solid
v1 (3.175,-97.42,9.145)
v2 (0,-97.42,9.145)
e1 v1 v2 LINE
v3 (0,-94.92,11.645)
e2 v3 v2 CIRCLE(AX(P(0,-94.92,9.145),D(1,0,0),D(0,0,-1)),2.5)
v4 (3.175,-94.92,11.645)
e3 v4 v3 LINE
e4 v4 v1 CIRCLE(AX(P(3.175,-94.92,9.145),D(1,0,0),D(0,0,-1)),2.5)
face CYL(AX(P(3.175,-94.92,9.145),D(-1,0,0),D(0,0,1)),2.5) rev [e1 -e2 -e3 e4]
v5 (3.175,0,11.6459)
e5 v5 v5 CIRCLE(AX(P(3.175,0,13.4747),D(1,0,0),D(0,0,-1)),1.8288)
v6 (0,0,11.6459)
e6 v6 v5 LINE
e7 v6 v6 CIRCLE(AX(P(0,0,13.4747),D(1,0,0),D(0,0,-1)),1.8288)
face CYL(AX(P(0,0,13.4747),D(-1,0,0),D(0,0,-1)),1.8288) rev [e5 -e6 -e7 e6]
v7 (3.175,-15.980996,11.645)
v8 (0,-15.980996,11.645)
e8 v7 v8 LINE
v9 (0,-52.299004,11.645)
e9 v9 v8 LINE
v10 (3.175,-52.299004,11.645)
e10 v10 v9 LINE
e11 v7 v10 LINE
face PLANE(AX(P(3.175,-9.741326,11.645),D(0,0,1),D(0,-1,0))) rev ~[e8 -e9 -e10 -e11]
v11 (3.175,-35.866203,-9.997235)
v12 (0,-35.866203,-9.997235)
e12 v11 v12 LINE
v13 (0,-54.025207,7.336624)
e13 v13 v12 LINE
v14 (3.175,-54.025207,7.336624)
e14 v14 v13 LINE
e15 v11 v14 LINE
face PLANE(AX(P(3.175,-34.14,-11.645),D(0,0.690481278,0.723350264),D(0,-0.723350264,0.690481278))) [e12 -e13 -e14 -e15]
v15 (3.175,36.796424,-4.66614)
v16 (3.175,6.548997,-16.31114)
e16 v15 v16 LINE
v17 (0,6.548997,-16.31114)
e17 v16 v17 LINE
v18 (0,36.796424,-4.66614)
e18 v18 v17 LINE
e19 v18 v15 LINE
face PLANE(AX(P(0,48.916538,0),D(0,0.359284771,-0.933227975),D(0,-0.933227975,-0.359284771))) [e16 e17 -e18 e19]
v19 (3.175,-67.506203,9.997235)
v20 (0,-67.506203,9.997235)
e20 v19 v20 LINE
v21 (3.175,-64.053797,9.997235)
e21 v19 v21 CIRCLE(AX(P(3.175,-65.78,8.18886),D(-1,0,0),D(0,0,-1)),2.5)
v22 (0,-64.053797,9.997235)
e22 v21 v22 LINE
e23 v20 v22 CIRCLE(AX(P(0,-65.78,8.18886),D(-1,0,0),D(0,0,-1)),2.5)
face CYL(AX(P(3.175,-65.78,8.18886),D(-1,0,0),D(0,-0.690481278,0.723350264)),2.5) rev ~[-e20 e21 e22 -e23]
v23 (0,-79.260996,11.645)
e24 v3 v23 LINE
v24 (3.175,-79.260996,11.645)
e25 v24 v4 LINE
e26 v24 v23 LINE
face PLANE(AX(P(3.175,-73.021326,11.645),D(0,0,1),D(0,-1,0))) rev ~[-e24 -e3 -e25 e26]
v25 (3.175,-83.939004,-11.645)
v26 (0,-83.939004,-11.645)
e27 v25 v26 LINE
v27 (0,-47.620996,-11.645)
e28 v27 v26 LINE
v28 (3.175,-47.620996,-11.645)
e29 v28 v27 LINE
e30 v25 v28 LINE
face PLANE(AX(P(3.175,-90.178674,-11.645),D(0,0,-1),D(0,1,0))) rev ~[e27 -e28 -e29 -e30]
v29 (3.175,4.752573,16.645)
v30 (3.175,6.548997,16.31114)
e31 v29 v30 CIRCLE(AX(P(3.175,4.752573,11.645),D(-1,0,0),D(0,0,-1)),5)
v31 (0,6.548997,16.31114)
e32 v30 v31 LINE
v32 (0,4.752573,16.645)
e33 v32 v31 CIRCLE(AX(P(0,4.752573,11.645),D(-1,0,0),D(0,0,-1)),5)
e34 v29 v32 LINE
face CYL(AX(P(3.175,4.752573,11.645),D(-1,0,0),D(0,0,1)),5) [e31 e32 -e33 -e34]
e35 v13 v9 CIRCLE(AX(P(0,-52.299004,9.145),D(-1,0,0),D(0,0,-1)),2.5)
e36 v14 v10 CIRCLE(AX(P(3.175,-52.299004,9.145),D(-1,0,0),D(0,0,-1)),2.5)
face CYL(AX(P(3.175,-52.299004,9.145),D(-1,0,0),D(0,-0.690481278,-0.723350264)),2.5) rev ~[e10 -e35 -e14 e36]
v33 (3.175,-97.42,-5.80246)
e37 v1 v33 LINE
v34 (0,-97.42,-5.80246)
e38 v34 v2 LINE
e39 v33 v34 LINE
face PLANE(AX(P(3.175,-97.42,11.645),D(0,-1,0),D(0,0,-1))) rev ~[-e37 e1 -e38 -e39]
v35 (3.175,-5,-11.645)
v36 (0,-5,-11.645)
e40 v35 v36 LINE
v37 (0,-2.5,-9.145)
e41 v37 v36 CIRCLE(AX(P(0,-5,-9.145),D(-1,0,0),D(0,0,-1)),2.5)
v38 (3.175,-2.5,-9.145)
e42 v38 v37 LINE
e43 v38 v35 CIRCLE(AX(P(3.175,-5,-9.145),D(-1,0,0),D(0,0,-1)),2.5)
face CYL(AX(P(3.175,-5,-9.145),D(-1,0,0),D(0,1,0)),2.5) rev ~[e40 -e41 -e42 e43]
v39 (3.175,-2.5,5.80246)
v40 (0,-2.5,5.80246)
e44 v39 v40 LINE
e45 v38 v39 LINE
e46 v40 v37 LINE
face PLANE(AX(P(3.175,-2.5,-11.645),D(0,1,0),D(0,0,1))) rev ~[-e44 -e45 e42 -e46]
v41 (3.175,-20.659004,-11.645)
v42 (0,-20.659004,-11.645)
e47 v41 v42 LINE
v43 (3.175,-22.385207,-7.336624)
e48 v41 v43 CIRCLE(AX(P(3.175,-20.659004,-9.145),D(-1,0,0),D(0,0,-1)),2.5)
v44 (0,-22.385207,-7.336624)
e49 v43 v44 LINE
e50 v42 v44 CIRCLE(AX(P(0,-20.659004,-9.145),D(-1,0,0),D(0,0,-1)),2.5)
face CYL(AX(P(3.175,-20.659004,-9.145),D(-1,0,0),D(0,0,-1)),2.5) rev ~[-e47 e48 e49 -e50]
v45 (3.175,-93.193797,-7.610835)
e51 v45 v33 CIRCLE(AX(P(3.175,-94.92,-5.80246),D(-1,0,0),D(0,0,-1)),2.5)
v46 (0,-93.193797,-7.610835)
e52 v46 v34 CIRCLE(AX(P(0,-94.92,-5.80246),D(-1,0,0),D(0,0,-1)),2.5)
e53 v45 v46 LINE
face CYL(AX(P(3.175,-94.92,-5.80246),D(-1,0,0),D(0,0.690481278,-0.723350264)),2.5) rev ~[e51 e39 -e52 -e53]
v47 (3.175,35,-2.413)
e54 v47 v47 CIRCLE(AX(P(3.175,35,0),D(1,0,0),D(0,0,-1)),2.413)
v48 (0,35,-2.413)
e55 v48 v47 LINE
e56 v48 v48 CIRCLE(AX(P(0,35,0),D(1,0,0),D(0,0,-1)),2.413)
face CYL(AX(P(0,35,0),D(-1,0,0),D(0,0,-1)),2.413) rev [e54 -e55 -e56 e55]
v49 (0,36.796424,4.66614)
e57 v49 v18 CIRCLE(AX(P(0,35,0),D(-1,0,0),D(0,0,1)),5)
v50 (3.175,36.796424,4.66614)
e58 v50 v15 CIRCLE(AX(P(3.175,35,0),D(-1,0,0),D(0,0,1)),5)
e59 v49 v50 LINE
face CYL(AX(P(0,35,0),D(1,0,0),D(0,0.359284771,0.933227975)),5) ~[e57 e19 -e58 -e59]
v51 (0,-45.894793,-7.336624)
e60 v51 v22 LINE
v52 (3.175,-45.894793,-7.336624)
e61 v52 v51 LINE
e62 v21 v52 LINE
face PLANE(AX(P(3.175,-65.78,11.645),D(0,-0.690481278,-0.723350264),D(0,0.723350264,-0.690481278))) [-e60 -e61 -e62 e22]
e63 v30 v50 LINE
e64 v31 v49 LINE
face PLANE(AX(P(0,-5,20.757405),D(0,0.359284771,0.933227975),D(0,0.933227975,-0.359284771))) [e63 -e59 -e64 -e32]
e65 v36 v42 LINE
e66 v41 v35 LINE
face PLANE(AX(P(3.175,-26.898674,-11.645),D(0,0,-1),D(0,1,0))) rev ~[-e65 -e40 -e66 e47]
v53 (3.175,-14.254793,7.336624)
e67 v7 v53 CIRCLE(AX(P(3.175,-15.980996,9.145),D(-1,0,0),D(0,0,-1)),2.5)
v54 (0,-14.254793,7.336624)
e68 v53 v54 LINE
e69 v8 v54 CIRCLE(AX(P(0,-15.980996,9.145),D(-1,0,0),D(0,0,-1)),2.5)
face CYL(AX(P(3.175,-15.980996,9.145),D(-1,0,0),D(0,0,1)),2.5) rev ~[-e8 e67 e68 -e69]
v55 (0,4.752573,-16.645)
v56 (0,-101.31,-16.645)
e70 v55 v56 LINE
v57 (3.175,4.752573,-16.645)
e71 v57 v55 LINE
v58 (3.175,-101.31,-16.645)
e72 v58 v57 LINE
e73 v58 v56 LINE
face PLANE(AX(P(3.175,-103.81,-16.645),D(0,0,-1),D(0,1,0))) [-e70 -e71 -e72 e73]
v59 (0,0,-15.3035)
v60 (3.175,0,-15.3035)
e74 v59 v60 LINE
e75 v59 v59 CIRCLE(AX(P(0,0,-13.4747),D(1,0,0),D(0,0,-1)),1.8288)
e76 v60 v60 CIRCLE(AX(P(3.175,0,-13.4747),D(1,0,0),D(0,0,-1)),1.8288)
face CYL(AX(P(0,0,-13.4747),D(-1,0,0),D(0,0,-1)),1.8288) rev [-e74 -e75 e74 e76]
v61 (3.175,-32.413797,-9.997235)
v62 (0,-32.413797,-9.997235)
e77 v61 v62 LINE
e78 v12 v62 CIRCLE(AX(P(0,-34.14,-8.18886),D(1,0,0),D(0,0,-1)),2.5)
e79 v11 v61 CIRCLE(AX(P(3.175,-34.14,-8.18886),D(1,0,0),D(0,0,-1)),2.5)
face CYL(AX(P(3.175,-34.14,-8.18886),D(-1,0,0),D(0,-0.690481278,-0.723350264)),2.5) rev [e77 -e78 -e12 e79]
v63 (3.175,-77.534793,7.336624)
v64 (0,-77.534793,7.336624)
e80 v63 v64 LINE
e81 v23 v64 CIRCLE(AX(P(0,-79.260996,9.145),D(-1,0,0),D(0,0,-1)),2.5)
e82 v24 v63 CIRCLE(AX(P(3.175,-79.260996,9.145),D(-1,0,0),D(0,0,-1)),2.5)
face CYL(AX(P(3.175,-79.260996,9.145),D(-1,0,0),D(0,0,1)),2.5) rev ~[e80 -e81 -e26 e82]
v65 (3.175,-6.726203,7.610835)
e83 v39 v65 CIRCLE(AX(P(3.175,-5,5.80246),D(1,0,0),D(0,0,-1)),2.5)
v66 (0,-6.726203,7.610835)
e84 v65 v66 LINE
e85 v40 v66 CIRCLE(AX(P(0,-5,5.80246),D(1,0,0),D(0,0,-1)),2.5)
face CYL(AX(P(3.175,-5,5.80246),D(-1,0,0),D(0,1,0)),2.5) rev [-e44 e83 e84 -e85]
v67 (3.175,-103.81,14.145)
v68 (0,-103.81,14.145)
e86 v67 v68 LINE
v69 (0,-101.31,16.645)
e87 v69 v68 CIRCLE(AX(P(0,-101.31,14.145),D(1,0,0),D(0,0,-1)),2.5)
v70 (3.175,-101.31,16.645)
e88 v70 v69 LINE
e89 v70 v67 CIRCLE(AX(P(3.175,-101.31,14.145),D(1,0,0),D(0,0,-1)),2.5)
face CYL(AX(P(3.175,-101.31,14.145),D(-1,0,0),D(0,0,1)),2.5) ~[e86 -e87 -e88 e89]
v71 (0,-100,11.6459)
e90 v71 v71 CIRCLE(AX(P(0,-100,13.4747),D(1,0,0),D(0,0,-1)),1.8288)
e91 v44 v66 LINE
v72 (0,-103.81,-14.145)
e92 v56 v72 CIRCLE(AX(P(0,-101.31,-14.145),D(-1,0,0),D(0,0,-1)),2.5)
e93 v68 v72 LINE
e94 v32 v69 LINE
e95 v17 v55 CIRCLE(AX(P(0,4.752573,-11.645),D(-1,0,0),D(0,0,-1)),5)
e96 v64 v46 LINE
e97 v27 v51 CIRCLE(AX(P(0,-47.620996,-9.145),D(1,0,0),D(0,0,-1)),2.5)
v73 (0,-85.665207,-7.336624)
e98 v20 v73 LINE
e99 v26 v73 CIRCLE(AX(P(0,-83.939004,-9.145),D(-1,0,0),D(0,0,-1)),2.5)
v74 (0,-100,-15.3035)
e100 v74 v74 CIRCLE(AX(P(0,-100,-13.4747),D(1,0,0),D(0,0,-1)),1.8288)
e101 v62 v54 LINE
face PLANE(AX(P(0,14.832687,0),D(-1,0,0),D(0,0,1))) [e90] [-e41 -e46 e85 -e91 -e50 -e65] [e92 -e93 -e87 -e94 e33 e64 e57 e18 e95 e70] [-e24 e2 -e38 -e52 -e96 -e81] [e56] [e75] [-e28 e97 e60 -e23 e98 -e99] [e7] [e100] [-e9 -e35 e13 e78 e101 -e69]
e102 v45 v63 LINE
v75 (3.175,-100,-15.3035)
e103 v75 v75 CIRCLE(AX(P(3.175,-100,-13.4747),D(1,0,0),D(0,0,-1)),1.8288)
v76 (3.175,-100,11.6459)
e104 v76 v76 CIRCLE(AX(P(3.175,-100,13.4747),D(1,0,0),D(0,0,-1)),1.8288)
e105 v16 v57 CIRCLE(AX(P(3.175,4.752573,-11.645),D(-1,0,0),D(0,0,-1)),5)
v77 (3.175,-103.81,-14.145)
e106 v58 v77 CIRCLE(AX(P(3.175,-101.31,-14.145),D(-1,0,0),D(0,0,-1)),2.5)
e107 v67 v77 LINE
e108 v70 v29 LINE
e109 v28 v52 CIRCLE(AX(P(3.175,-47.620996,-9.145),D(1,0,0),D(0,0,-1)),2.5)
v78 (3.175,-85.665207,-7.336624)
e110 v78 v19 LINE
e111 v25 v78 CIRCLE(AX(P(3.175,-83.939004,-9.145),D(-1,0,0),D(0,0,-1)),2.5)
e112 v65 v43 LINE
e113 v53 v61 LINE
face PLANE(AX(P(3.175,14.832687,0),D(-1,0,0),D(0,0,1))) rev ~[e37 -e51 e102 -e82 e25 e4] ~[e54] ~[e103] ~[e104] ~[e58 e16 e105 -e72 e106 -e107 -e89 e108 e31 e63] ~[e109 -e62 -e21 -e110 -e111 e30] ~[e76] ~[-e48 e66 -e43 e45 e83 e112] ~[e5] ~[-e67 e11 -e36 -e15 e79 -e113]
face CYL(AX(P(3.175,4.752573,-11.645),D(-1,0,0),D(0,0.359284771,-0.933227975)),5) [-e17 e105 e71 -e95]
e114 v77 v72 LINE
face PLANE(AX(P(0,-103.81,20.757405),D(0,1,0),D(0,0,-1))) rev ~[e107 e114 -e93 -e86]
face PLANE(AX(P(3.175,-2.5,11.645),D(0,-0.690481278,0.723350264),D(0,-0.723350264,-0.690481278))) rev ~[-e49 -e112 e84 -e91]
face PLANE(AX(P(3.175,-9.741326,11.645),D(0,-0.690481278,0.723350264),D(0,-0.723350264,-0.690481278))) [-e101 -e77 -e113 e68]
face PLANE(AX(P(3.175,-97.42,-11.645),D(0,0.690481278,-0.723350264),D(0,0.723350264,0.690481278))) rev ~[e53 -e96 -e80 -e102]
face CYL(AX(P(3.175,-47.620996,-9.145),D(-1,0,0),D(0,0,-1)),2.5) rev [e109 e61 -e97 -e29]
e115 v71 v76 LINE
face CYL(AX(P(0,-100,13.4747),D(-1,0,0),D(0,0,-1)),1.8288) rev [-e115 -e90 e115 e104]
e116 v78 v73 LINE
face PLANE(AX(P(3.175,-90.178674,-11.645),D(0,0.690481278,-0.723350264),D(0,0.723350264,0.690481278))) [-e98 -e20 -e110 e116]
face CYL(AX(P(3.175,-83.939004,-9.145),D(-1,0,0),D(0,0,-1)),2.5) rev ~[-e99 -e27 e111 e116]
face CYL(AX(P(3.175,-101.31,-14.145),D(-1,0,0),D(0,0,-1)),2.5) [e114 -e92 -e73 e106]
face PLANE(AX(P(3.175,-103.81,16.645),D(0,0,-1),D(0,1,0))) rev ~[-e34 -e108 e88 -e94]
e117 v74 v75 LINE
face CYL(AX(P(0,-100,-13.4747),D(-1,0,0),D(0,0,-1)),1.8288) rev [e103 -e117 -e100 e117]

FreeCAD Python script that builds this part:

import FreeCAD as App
import Part
import Sketcher

V = App.Vector
Q = App.Units.Quantity


def edges_at(feature, points):
    """Names of the edges that pass closest to the given points."""
    edges = feature.Shape.Edges
    near = lambda p: min(range(len(edges)), key=lambda i: edges[i].distToShape(Part.Vertex(*p))[0])
    return sorted({f"Edge{near(p) + 1}" for p in points})

doc = App.newDocument("Part")
body = doc.addObject("PartDesign::Body", "Body")

sketch1 = body.newObject("Sketcher::SketchObject", "Sketch")
sketch1.AttachmentSupport = (doc.getObject("YZ_Plane"), [""])
sketch1.MapMode = "FlatFace"
sketch1.addGeometry(Part.LineSegment(V(-5, 20.8, 0), V(-103.8, 20.8, 0)), False)
sketch1.addGeometry(Part.LineSegment(V(-103.8, 20.8, 0), V(-103.8, -20.8, 0)), False)
sketch1.addGeometry(Part.LineSegment(V(-103.8, -20.8, 0), V(-5, -20.8, 0)), False)
sketch1.addGeometry(Part.LineSegment(V(-5, -20.8, 0), V(48.9, 0, 0)), False)
sketch1.addGeometry(Part.LineSegment(V(48.9, 0, 0), V(-5, 20.8, 0)), False)
sketch1.addGeometry(Part.Circle(V(-100, 13.5, 0), V(0, 0, 1), 1.8), False)
sketch1.addGeometry(Part.Circle(V(-100, -13.5, 0), V(0, 0, 1), 1.8), False)
sketch1.addGeometry(Part.Circle(V(35, 0, 0), V(0, 0, 1), 2.4), False)
sketch1.addGeometry(Part.Circle(V(0, -13.5, 0), V(0, 0, 1), 1.8), False)
sketch1.addGeometry(Part.Circle(V(0, 13.5, 0), V(0, 0, 1), 1.8), False)
sketch1.addConstraint(Sketcher.Constraint("Coincident", 0, 2, 1, 1))
sketch1.addConstraint(Sketcher.Constraint("Coincident", 1, 2, 2, 1))
sketch1.addConstraint(Sketcher.Constraint("Coincident", 2, 2, 3, 1))
sketch1.addConstraint(Sketcher.Constraint("Coincident", 3, 2, 4, 1))
sketch1.addConstraint(Sketcher.Constraint("Coincident", 4, 2, 0, 1))
sketch1.addConstraint(Sketcher.Constraint("Horizontal", 0))
sketch1.addConstraint(Sketcher.Constraint("Vertical", 1))
sketch1.addConstraint(Sketcher.Constraint("Horizontal", 2))
sketch1.addConstraint(Sketcher.Constraint("Equal", 5, 6))
sketch1.addConstraint(Sketcher.Constraint("Equal", 6, 8))
sketch1.addConstraint(Sketcher.Constraint("Equal", 8, 9))
sketch1.addConstraint(Sketcher.Constraint("Symmetric", 8, 3, 9, 3, -1, 1))
sketch1.addConstraint(Sketcher.Constraint("Symmetric", 5, 3, 6, 3, -1))
sketch1.addConstraint(Sketcher.Constraint("Symmetric", 2, 2, 4, 2, -1))
sketch1.addConstraint(Sketcher.Constraint("PointOnObject", 7, 3, -1))
sketch1.addConstraint(Sketcher.Constraint("PointOnObject", 8, 3, -2))
sketch1.addConstraint(Sketcher.Constraint("PointOnObject", 3, 2, -1))
sketch1.addConstraint(Sketcher.Constraint("Horizontal", 6, 3, 8, 3))
sketch1.addConstraint(Sketcher.Constraint("Diameter", 7, Q("0.19 in")))
sketch1.addConstraint(Sketcher.Constraint("Diameter", 5, Q("0.144 in")))
sketch1.addConstraint(Sketcher.Constraint("DistanceX", 0, 2, 5, 3, Q("0.15 in")))
sketch1.addConstraint(Sketcher.Constraint("DistanceY", 6, 3, 5, 3, Q("1.061 in")))
sketch1.addConstraint(Sketcher.Constraint("DistanceX", 0, 2, 0, 1, 98.81))
sketch1.addConstraint(Sketcher.Constraint("DistanceY", 1, 2, 1, 1, 41.51481))
sketch1.addConstraint(Sketcher.Constraint("DistanceX", 5, 3, -1, 1, 100.0))
sketch1.addConstraint(Sketcher.Constraint("DistanceX", -1, 1, 7, 3, 35.0))
sketch1.addConstraint(Sketcher.Constraint("Distance", 3, 57.774241))
pad1 = body.newObject("PartDesign::Pad", "Pad")
pad1.Profile = sketch1
pad1.Length = Q("0.125 in")

sketch2 = body.newObject("Sketcher::SketchObject", "Sketch001")
sketch2.AttachmentSupport = (doc.getObject("YZ_Plane"), [""])
sketch2.MapMode = "FlatFace"
sketch2.AttachmentOffset = App.Placement(V(0, 0, 0.125 * 25.4), App.Rotation())
sketch2.addGeometry(Part.LineSegment(V(-2.5, -11.6, 0), V(-2.5, 11.6, 0)), False)
sketch2.addGeometry(Part.LineSegment(V(-2.5, 11.6, 0), V(-26.9, -11.6, 0)), False)
sketch2.addGeometry(Part.LineSegment(V(-26.9, -11.6, 0), V(-2.5, -11.6, 0)), False)
sketch2.addGeometry(Part.LineSegment(V(-34.1, -11.6, 0), V(-9.7, 11.6, 0)), False)
sketch2.addGeometry(Part.LineSegment(V(-9.7, 11.6, 0), V(-58.5, 11.6, 0)), False)
sketch2.addGeometry(Part.LineSegment(V(-58.5, 11.6, 0), V(-34.1, -11.6, 0)), False)
sketch2.addGeometry(Part.LineSegment(V(-73, 11.6, 0), V(-97.4, 11.6, 0)), False)
sketch2.addGeometry(Part.LineSegment(V(-97.4, 11.6, 0), V(-97.4, -11.6, 0)), False)
sketch2.addGeometry(Part.LineSegment(V(-97.4, -11.6, 0), V(-73, 11.6, 0)), False)
sketch2.addGeometry(Part.LineSegment(V(-90.2, -11.6, 0), V(-41.4, -11.6, 0)), False)
sketch2.addGeometry(Part.LineSegment(V(-41.4, -11.6, 0), V(-65.8, 11.6, 0)), False)
sketch2.addGeometry(Part.LineSegment(V(-65.8, 11.6, 0), V(-90.2, -11.6, 0)), False)
sketch2.addGeometry(Part.LineSegment(V(37.4, 20.8, 0), V(-103.8, 20.8, 0)), False)
sketch2.addGeometry(Part.LineSegment(V(-103.8, 20.8, 0), V(-103.8, 16.6, 0)), False)
sketch2.addGeometry(Part.LineSegment(V(-103.8, 16.6, 0), V(37.4, 16.6, 0)), False)
sketch2.addGeometry(Part.LineSegment(V(37.4, 16.6, 0), V(37.4, 20.8, 0)), False)
sketch2.addGeometry(Part.LineSegment(V(37.4, -16.6, 0), V(-103.8, -16.6, 0)), False)
sketch2.addGeometry(Part.LineSegment(V(-103.8, -16.6, 0), V(-103.8, -20.8, 0)), False)
sketch2.addGeometry(Part.LineSegment(V(-103.8, -20.8, 0), V(37.4, -20.8, 0)), False)
sketch2.addGeometry(Part.LineSegment(V(37.4, -20.8, 0), V(37.4, -16.6, 0)), False)
sketch2.addConstraint(Sketcher.Constraint("Coincident", 0, 2, 1, 1))
sketch2.addConstraint(Sketcher.Constraint("Coincident", 1, 2, 2, 1))
sketch2.addConstraint(Sketcher.Constraint("Coincident", 2, 2, 0, 1))
sketch2.addConstraint(Sketcher.Constraint("Coincident", 3, 2, 4, 1))
sketch2.addConstraint(Sketcher.Constraint("Coincident", 4, 2, 5, 1))
sketch2.addConstraint(Sketcher.Constraint("Coincident", 5, 2, 3, 1))
sketch2.addConstraint(Sketcher.Constraint("Coincident", 6, 2, 7, 1))
sketch2.addConstraint(Sketcher.Constraint("Coincident", 7, 2, 8, 1))
sketch2.addConstraint(Sketcher.Constraint("Coincident", 8, 2, 6, 1))
sketch2.addConstraint(Sketcher.Constraint("Coincident", 9, 2, 10, 1))
sketch2.addConstraint(Sketcher.Constraint("Coincident", 10, 2, 11, 1))
sketch2.addConstraint(Sketcher.Constraint("Coincident", 11, 2, 9, 1))
sketch2.addConstraint(Sketcher.Constraint("Coincident", 12, 2, 13, 1))
sketch2.addConstraint(Sketcher.Constraint("Coincident", 13, 2, 14, 1))
sketch2.addConstraint(Sketcher.Constraint("Coincident", 14, 2, 15, 1))
sketch2.addConstraint(Sketcher.Constraint("Coincident", 15, 2, 12, 1))
sketch2.addConstraint(Sketcher.Constraint("Coincident", 16, 2, 17, 1))
sketch2.addConstraint(Sketcher.Constraint("Coincident", 17, 2, 18, 1))
sketch2.addConstraint(Sketcher.Constraint("Coincident", 18, 2, 19, 1))
sketch2.addConstraint(Sketcher.Constraint("Coincident", 19, 2, 16, 1))
sketch2.addConstraint(Sketcher.Constraint("Vertical", 0))
sketch2.addConstraint(Sketcher.Constraint("Horizontal", 2))
sketch2.addConstraint(Sketcher.Constraint("Horizontal", 4))
sketch2.addConstraint(Sketcher.Constraint("Horizontal", 6))
sketch2.addConstraint(Sketcher.Constraint("Vertical", 7))
sketch2.addConstraint(Sketcher.Constraint("Horizontal", 9))
sketch2.addConstraint(Sketcher.Constraint("Horizontal", 12))
sketch2.addConstraint(Sketcher.Constraint("Vertical", 13))
sketch2.addConstraint(Sketcher.Constraint("Horizontal", 14))
sketch2.addConstraint(Sketcher.Constraint("Vertical", 15))
sketch2.addConstraint(Sketcher.Constraint("Horizontal", 16))
sketch2.addConstraint(Sketcher.Constraint("Vertical", 17))
sketch2.addConstraint(Sketcher.Constraint("Horizontal", 18))
sketch2.addConstraint(Sketcher.Constraint("Vertical", 19))
sketch2.addConstraint(Sketcher.Constraint("Symmetric", 13, 2, 16, 2, -1))
sketch2.addConstraint(Sketcher.Constraint("Symmetric", 15, 2, 18, 2, -1))
sketch2.addConstraint(Sketcher.Constraint("Parallel", 1, 3))
sketch2.addConstraint(Sketcher.Constraint("Parallel", 3, 8))
sketch2.addConstraint(Sketcher.Constraint("Parallel", 5, 10))
sketch2.addConstraint(Sketcher.Constraint("Parallel", 8, 11))
sketch2.addConstraint(Sketcher.Constraint("Horizontal", 0, 2, 3, 2))
sketch2.addConstraint(Sketcher.Constraint("Horizontal", 2, 2, 5, 2))
sketch2.addConstraint(Sketcher.Constraint("Horizontal", 4, 2, 6, 2))
sketch2.addConstraint(Sketcher.Constraint("Horizontal", 5, 2, 7, 2))
sketch2.addConstraint(Sketcher.Constraint("Horizontal", 7, 2, 9, 2))
sketch2.addConstraint(Sketcher.Constraint("Horizontal", 8, 2, 10, 2))
sketch2.addConstraint(Sketcher.Constraint("Equal", 3, 5))
sketch2.addConstraint(Sketcher.Constraint("DistanceX", 12, 2, 12, 1, 141.223))
sketch2.addConstraint(Sketcher.Constraint("DistanceY", 0, 1, 0, 2, 23.29))
sketch2.addConstraint(Sketcher.Constraint("DistanceX", 4, 2, 4, 1, 48.797348))
sketch2.addConstraint(Sketcher.Constraint("DistanceX", 0, 2, -1, 1, 2.5))
sketch2.addConstraint(Sketcher.Constraint("DistanceY", -1, 1, 0, 2, 11.645))
sketch2.addConstraint(Sketcher.Constraint("DistanceX", 5, 2, -1, 1, 34.14))
sketch2.addConstraint(Sketcher.Constraint("DistanceX", 6, 2, -1, 1, 97.42))
sketch2.addConstraint(Sketcher.Constraint("DistanceX", 10, 2, -1, 1, 65.78))
sketch2.addConstraint(Sketcher.Constraint("DistanceX", 12, 2, -1, 1, 103.81))
sketch2.addConstraint(Sketcher.Constraint("DistanceY", -1, 1, 13, 2, 16.645))
sketch2.addConstraint(Sketcher.Constraint("DistanceY", 13, 2, 13, 1, 4.112405))
pocket1 = body.newObject("PartDesign::Pocket", "Pocket")
pocket1.Profile = sketch2
pocket1.Type = "ThroughAll"
doc.recompute()

fillet = body.newObject("PartDesign::Fillet", "Fillet")
fillet.Base = (pocket1, edges_at(pocket1, [
    (1.587, -103.81, -16.645),
    (1.587, -9.741, 11.645),
    (1.587, -34.14, -11.645),
    (1.587, -58.539, 11.645),
    (1.587, -26.899, -11.645),
    (1.587, -2.5, 11.645),
    (1.587, -2.5, -11.645),
    (1.587, -90.179, -11.645),
    (1.587, -65.78, 11.645),
    (1.587, -41.381, -11.645),
    (1.587, -103.81, 16.645),
    (1.587, -73.021, 11.645),
    (1.587, -97.42, -11.645),
    (1.587, -97.42, 11.645),
]))
fillet.Radius = 2.5
doc.recompute()

fillet2 = body.newObject("PartDesign::Fillet", "Fillet001")
fillet2.Base = (fillet, edges_at(fillet, [(1.587, 48.917, 0), (1.587, 5.682, -16.645), (1.587, 5.682, 16.645)]))
fillet2.Radius = 5

doc.recompute()
